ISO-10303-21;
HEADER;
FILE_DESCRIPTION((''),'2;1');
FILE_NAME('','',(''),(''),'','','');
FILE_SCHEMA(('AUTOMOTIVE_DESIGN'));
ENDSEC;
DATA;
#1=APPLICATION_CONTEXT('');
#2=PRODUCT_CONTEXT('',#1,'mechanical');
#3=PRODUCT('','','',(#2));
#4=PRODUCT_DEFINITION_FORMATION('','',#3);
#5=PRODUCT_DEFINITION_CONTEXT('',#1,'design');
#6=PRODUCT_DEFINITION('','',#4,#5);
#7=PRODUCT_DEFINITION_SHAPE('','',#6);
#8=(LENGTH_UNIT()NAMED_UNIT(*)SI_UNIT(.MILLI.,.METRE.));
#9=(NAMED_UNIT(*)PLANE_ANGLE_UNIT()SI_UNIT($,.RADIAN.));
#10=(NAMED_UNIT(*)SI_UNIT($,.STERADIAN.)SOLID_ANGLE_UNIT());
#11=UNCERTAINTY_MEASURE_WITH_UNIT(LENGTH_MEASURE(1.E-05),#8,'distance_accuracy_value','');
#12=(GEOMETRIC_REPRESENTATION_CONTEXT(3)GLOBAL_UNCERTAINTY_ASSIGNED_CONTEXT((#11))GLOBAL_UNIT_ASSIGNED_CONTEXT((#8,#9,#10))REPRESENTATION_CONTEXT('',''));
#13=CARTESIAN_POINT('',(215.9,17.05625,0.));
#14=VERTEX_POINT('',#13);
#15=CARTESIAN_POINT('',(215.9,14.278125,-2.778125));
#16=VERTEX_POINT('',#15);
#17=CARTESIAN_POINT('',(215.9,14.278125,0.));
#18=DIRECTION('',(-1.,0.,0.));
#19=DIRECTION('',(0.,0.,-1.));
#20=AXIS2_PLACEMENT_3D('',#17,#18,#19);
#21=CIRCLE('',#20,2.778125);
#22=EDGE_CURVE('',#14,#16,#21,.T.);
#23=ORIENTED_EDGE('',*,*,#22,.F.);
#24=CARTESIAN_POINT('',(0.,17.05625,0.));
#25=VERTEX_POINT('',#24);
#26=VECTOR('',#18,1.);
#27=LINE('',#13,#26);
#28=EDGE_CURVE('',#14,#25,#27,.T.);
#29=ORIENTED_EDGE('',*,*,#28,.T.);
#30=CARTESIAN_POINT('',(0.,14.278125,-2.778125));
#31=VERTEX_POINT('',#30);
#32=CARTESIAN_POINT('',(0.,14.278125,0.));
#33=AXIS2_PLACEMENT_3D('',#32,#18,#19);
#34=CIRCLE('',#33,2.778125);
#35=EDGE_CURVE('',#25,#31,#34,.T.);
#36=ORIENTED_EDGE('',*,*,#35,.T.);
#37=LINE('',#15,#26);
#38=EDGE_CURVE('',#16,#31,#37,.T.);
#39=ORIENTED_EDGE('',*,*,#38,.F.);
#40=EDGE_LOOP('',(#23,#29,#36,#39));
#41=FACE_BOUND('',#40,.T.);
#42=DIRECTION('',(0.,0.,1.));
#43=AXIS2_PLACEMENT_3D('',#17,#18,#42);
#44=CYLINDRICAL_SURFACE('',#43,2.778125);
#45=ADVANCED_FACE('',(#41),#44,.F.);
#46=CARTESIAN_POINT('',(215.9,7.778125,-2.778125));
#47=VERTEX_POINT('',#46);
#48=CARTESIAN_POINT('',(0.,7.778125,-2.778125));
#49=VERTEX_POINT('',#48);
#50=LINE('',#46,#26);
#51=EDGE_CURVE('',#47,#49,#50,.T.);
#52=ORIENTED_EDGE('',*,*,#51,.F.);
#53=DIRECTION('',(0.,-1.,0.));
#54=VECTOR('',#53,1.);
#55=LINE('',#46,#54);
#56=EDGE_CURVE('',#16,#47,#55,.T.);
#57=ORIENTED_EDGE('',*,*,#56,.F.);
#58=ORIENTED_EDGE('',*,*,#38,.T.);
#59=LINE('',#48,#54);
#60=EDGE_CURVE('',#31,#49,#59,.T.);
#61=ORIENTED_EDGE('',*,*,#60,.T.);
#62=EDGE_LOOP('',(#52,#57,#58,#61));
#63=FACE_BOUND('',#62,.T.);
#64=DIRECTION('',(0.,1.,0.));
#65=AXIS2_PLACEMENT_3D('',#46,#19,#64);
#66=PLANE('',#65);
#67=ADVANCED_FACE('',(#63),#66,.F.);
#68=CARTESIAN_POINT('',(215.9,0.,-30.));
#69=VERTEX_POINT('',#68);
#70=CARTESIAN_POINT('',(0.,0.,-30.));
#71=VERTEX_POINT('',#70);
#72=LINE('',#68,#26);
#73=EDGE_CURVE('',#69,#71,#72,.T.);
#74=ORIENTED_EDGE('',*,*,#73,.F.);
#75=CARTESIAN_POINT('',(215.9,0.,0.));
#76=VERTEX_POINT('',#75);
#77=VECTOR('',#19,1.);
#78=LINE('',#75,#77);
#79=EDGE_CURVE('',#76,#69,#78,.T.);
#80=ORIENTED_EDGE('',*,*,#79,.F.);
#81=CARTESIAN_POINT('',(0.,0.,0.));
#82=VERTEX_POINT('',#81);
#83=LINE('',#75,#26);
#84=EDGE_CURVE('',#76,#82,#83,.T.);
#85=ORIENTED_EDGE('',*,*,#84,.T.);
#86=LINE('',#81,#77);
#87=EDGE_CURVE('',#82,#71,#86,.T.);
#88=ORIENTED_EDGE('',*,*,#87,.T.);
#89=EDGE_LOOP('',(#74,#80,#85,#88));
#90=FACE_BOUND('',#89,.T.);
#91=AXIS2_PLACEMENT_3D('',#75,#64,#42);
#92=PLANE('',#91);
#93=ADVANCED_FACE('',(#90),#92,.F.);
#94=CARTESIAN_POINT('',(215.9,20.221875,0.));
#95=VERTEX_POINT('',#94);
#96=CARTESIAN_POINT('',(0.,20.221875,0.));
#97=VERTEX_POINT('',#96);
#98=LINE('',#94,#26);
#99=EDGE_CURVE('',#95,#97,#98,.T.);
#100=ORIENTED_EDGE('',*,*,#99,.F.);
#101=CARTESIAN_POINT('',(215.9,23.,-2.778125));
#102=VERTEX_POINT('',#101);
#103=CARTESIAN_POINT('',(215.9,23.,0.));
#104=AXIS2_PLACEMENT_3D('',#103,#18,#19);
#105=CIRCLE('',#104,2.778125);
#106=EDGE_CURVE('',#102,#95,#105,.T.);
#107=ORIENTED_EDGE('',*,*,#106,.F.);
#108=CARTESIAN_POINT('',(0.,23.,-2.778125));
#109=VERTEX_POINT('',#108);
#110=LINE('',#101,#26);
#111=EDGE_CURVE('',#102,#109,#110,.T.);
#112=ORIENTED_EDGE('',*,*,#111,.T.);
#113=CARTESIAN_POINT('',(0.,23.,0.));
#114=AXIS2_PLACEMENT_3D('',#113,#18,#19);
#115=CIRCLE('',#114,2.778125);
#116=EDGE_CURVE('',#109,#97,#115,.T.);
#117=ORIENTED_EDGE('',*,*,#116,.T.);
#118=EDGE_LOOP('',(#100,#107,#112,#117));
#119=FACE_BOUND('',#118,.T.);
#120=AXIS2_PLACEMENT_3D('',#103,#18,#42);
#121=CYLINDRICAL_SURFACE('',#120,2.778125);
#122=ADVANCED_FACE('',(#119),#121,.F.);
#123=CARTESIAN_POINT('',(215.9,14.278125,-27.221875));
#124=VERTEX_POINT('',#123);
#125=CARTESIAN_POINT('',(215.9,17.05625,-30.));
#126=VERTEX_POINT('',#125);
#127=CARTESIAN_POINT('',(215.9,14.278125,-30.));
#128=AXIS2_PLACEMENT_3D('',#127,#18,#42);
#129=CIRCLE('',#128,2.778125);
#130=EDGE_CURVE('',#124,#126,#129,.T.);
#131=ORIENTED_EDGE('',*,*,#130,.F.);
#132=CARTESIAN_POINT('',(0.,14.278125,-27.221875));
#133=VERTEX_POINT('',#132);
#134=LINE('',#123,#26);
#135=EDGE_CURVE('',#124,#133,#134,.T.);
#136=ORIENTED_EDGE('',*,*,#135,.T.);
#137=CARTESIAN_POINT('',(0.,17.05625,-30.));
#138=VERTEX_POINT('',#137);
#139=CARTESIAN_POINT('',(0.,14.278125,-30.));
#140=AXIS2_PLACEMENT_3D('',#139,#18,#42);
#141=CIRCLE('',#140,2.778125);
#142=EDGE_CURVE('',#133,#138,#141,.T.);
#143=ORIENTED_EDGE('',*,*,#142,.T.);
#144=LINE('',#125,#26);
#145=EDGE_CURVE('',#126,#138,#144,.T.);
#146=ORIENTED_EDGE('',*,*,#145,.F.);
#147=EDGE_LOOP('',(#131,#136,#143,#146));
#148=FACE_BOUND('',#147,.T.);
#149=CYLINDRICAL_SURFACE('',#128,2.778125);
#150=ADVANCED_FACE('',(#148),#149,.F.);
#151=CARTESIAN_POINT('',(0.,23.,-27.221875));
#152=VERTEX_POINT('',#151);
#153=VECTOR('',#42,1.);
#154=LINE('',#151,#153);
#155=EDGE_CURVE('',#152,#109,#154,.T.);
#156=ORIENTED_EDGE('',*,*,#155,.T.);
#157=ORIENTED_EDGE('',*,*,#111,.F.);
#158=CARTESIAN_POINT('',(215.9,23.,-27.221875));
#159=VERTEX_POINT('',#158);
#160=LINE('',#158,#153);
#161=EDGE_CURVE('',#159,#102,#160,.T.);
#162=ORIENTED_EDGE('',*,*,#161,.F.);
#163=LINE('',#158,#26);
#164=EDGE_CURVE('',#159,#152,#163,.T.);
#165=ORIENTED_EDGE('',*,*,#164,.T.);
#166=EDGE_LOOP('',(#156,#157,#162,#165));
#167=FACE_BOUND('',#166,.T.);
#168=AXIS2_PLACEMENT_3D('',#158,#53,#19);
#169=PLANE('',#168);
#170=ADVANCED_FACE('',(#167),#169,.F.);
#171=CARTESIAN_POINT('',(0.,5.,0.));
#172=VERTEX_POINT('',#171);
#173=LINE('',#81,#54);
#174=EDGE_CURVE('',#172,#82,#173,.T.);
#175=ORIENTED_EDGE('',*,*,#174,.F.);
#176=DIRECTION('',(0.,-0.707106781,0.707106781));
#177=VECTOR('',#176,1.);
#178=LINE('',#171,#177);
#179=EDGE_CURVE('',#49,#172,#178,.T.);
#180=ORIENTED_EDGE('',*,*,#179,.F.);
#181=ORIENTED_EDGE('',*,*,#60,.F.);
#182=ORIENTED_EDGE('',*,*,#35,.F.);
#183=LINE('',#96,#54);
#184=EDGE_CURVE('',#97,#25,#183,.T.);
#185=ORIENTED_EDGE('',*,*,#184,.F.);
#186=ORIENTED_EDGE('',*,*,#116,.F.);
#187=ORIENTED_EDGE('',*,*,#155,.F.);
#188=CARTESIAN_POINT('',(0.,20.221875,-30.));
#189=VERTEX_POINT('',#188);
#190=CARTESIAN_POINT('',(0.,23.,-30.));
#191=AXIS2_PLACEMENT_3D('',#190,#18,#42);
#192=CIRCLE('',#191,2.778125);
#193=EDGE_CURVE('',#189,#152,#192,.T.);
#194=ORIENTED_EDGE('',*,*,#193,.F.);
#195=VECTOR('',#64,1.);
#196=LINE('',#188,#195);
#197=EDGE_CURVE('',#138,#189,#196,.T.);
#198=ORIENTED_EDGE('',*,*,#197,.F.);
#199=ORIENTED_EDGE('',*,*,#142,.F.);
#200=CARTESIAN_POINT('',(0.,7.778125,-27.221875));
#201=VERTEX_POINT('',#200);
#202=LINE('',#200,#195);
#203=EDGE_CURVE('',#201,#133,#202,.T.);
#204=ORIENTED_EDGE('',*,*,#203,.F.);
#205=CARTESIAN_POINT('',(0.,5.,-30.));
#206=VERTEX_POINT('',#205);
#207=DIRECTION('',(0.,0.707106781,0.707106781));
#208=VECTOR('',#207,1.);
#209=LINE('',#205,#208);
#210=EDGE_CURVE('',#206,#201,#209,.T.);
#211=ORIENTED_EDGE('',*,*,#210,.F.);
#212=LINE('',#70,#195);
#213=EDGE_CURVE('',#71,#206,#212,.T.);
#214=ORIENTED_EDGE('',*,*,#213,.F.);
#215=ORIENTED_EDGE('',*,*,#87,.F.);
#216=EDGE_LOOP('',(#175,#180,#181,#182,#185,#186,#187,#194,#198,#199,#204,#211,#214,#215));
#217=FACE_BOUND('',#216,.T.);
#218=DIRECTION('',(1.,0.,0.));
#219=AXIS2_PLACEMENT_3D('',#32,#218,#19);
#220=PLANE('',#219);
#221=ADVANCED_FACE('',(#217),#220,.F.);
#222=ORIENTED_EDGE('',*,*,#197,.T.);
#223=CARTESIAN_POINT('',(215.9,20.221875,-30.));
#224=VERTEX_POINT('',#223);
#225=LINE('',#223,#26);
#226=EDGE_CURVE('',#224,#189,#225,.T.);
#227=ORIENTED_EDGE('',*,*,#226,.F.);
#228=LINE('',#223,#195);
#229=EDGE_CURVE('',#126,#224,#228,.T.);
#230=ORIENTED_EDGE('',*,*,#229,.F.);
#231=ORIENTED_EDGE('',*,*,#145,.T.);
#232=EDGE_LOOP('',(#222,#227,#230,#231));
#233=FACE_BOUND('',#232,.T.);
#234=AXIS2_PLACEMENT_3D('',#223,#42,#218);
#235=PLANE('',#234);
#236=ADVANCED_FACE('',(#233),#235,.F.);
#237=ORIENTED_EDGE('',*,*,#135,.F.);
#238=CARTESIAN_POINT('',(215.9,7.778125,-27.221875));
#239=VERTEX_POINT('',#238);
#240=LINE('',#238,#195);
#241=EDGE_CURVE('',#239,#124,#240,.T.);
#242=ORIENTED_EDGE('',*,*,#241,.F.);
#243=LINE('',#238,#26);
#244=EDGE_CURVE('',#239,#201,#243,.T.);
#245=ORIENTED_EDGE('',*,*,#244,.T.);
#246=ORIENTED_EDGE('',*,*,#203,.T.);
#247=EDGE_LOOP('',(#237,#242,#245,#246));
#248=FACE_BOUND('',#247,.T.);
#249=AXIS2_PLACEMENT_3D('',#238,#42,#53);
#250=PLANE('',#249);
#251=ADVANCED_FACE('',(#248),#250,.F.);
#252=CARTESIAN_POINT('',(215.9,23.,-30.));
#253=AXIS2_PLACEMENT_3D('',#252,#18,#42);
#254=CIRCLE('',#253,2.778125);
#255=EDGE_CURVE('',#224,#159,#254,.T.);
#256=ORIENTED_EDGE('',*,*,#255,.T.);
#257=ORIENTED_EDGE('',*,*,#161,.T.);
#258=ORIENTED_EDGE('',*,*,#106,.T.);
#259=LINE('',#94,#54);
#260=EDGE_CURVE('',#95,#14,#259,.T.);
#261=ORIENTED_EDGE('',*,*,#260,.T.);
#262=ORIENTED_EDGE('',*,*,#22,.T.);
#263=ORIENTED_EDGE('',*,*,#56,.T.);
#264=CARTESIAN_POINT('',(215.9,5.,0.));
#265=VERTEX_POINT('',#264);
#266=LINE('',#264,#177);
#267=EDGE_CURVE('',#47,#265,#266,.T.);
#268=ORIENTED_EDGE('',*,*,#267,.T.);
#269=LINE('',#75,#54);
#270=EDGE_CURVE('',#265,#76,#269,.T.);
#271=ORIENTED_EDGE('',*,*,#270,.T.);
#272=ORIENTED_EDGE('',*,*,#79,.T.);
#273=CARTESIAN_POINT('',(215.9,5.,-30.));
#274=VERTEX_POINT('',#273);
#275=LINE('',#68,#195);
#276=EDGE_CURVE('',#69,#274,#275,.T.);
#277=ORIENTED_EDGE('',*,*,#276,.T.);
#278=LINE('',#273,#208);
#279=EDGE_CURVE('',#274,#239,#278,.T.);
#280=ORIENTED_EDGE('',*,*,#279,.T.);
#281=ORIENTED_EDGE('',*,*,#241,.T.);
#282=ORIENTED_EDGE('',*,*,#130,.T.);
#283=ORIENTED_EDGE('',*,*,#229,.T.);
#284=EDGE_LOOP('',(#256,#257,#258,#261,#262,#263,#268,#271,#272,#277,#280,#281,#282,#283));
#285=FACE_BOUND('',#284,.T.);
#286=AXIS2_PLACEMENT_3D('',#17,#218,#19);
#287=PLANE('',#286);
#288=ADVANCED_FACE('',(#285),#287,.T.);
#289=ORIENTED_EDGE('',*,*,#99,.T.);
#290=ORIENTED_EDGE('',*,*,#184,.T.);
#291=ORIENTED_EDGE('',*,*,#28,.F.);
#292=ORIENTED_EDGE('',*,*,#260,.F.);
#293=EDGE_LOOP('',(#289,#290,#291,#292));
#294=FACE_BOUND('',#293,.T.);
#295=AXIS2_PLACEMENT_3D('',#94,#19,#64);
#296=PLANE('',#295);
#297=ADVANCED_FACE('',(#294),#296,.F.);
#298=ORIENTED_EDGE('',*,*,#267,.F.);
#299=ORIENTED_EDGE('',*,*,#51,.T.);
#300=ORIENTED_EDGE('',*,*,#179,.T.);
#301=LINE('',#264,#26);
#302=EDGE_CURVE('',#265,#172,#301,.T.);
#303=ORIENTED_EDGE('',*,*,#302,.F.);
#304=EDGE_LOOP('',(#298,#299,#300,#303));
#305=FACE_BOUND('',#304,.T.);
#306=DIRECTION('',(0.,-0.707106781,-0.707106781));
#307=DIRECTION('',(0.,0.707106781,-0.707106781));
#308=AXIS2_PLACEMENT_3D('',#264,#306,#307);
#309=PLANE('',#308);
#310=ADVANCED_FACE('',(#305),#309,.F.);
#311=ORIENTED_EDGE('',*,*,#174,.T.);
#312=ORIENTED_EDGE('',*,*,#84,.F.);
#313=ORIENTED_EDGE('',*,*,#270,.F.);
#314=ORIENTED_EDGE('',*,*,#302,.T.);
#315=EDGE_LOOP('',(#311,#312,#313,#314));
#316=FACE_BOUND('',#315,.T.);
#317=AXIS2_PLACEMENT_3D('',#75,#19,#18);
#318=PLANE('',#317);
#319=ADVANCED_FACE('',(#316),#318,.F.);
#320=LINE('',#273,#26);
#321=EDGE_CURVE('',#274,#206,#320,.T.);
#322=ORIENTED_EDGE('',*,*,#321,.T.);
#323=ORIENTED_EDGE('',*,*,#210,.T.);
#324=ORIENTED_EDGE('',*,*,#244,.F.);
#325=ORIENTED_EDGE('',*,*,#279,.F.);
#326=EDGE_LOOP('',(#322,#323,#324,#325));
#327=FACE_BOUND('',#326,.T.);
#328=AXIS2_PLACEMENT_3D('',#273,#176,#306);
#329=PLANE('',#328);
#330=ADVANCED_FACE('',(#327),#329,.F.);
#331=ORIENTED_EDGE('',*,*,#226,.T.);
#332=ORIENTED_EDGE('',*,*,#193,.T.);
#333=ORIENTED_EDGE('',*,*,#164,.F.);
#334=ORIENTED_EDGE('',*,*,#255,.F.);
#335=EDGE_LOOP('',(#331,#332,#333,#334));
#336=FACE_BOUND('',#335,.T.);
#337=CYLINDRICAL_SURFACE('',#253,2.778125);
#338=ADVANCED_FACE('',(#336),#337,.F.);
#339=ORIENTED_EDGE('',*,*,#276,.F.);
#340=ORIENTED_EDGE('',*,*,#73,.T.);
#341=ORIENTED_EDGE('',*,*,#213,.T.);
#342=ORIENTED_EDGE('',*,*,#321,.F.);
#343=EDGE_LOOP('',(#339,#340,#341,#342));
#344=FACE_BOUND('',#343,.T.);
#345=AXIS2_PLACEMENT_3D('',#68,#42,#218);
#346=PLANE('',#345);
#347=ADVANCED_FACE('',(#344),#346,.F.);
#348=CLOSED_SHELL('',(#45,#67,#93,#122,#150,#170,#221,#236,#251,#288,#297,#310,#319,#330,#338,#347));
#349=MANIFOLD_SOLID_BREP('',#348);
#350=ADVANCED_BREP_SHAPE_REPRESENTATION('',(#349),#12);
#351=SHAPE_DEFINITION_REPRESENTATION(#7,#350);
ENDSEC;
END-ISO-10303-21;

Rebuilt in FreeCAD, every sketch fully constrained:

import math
import FreeCAD as App
import Part
import Sketcher

V = App.Vector

doc = App.newDocument("Part")
body = doc.addObject("PartDesign::Body", "Body")

# Sketch on YZ plane
sketch1 = body.newObject("Sketcher::SketchObject", "Sketch")
sketch1.AttachmentSupport = (doc.getObject("YZ_Plane"), [""])
sketch1.MapMode = "FlatFace"
sketch1.addGeometry(Part.LineSegment(V(0, 0, 0), V(0, -30, 0)), False)
sketch1.addGeometry(Part.LineSegment(V(0, -30, 0), V(5, -30, 0)), False)
sketch1.addGeometry(Part.LineSegment(V(5, -30, 0), V(7.8, -27.2, 0)), False)
sketch1.addGeometry(Part.LineSegment(V(7.8, -27.2, 0), V(14.3, -27.2, 0)), False)
sketch1.addGeometry(Part.ArcOfCircle(Part.Circle(V(14.3, -30, 0), V(0, 0, 1), 2.8), math.radians(0), math.radians(90)), False)
sketch1.addGeometry(Part.LineSegment(V(17.1, -30, 0), V(20.2, -30, 0)), False)
sketch1.addGeometry(Part.ArcOfCircle(Part.Circle(V(23, -30, 0), V(0, 0, 1), 2.8), math.radians(90), math.radians(180)), False)
sketch1.addGeometry(Part.LineSegment(V(23, -27.2, 0), V(23, -2.8, 0)), False)
sketch1.addGeometry(Part.ArcOfCircle(Part.Circle(V(23, 0, 0), V(0, 0, 1), 2.8), math.radians(-180), math.radians(-90)), False)
sketch1.addGeometry(Part.LineSegment(V(20.2, 0, 0), V(17.1, 0, 0)), False)
sketch1.addGeometry(Part.ArcOfCircle(Part.Circle(V(14.3, 0, 0), V(0, 0, 1), 2.8), math.radians(-90), math.radians(0)), False)
sketch1.addGeometry(Part.LineSegment(V(14.3, -2.8, 0), V(7.8, -2.8, 0)), False)
sketch1.addGeometry(Part.LineSegment(V(7.8, -2.8, 0), V(5, 0, 0)), False)
sketch1.addGeometry(Part.LineSegment(V(5, 0, 0), V(0, 0, 0)), False)
sketch1.addConstraint(Sketcher.Constraint("Coincident", 0, 2, 1, 1))
sketch1.addConstraint(Sketcher.Constraint("Coincident", 1, 2, 2, 1))
sketch1.addConstraint(Sketcher.Constraint("Coincident", 2, 2, 3, 1))
sketch1.addConstraint(Sketcher.Constraint("Tangent", 3, 2, 4, 2))
sketch1.addConstraint(Sketcher.Constraint("Coincident", 4, 1, 5, 1))
sketch1.addConstraint(Sketcher.Constraint("Coincident", 5, 2, 6, 2))
sketch1.addConstraint(Sketcher.Constraint("Coincident", 6, 1, 7, 1))
sketch1.addConstraint(Sketcher.Constraint("Coincident", 7, 2, 8, 2))
sketch1.addConstraint(Sketcher.Constraint("Coincident", 8, 1, 9, 1))
sketch1.addConstraint(Sketcher.Constraint("Coincident", 9, 2, 10, 2))
sketch1.addConstraint(Sketcher.Constraint("Tangent", 10, 1, 11, 1))
sketch1.addConstraint(Sketcher.Constraint("Coincident", 11, 2, 12, 1))
sketch1.addConstraint(Sketcher.Constraint("Coincident", 12, 2, 13, 1))
sketch1.addConstraint(Sketcher.Constraint("Coincident", 13, 2, 0, 1))
sketch1.addConstraint(Sketcher.Constraint("Vertical", 0))
sketch1.addConstraint(Sketcher.Constraint("Horizontal", 1))
sketch1.addConstraint(Sketcher.Constraint("Horizontal", 3))
sketch1.addConstraint(Sketcher.Constraint("Horizontal", 5))
sketch1.addConstraint(Sketcher.Constraint("Vertical", 7))
sketch1.addConstraint(Sketcher.Constraint("Horizontal", 9))
sketch1.addConstraint(Sketcher.Constraint("Horizontal", 11))
sketch1.addConstraint(Sketcher.Constraint("Horizontal", 13))
sketch1.addConstraint(Sketcher.Constraint("Coincident", 13, 2, -1, 1))
sketch1.addConstraint(Sketcher.Constraint("Equal", 4, 6))
sketch1.addConstraint(Sketcher.Constraint("Equal", 6, 8))
sketch1.addConstraint(Sketcher.Constraint("Equal", 8, 10))
sketch1.addConstraint(Sketcher.Constraint("PointOnObject", 8, 3, -1))
sketch1.addConstraint(Sketcher.Constraint("PointOnObject", 10, 3, -1))
sketch1.addConstraint(Sketcher.Constraint("PointOnObject", 8, 1, -1))
sketch1.addConstraint(Sketcher.Constraint("Perpendicular", 2, 12))
sketch1.addConstraint(Sketcher.Constraint("Horizontal", 4, 3, 6, 3))
sketch1.addConstraint(Sketcher.Constraint("Horizontal", 6, 3, 0, 2))
sketch1.addConstraint(Sketcher.Constraint("Horizontal", 1, 2, 4, 1))
sketch1.addConstraint(Sketcher.Constraint("Vertical", 6, 3, 8, 3))
sketch1.addConstraint(Sketcher.Constraint("Vertical", 4, 3, 10, 3))
sketch1.addConstraint(Sketcher.Constraint("Vertical", 8, 3, 6, 1))
sketch1.addConstraint(Sketcher.Constraint("Vertical", 2, 2, 11, 2))
sketch1.addConstraint(Sketcher.Constraint("Vertical", 1, 2, 12, 2))
sketch1.addConstraint(Sketcher.Constraint("DistanceX", 1, 1, 1, 2, 5.0))
sketch1.addConstraint(Sketcher.Constraint("DistanceY", 0, 2, 0, 1, 30.0))
sketch1.addConstraint(Sketcher.Constraint("DistanceX", 3, 1, 3, 2, 6.5))
sketch1.addConstraint(Sketcher.Constraint("DistanceX", -1, 1, 6, 3, 23.0))
sketch1.addConstraint(Sketcher.Constraint("Radius", 4, 2.778125))
pad1 = body.newObject("PartDesign::Pad", "Pad")
pad1.Profile = sketch1
pad1.Length = 215.9

doc.recompute()
